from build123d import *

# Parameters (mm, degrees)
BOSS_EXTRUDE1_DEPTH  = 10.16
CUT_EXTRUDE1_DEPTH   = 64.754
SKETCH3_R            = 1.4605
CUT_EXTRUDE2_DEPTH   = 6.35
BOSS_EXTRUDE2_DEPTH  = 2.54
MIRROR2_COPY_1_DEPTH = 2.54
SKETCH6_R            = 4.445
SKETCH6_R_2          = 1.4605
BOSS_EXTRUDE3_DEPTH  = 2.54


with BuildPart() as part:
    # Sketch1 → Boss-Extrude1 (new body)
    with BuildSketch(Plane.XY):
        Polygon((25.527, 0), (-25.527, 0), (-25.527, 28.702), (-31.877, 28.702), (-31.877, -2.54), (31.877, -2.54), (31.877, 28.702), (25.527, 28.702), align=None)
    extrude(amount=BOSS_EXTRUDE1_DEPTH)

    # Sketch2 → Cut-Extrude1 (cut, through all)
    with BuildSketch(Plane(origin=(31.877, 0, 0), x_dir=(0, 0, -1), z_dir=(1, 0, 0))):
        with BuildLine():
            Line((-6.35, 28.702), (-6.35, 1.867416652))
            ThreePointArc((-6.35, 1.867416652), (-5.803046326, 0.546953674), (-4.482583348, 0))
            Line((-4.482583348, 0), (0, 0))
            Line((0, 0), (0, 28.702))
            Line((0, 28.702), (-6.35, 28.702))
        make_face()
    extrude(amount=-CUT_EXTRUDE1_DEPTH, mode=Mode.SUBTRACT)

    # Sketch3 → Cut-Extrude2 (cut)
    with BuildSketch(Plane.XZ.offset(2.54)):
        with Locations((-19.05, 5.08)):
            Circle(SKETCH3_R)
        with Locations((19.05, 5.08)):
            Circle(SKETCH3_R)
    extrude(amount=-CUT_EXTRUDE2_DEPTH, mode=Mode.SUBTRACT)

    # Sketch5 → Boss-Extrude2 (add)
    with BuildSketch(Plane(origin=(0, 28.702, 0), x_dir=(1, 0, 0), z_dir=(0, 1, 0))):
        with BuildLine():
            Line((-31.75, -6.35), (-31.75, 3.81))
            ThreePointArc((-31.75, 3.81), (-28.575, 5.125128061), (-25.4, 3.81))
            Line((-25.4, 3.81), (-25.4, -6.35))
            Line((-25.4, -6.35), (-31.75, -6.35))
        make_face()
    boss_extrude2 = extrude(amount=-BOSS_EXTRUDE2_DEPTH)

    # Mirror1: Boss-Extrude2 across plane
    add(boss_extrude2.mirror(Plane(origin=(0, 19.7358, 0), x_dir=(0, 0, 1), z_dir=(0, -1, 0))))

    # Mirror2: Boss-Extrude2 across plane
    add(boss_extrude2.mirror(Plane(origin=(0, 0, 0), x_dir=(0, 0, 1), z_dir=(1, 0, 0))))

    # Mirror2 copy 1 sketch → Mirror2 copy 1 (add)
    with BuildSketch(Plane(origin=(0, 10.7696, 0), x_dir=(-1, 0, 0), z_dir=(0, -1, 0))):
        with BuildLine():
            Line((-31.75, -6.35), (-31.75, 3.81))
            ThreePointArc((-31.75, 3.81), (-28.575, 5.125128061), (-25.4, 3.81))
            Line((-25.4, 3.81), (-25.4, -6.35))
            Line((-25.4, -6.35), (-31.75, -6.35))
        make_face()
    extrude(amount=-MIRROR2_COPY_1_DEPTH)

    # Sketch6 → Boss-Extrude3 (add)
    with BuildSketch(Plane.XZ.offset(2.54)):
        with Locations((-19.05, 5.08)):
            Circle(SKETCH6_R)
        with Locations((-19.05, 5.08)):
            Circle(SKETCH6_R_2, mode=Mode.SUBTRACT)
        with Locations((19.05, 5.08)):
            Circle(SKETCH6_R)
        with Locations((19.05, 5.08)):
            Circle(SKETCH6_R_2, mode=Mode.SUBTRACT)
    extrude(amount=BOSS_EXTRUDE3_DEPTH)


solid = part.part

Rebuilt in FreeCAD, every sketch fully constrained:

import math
import FreeCAD as App
import Part
import Sketcher
Q = App.Units.Quantity


def add_polygon(sketch, points):
    """Adds a closed chain of lines whose ends are joined by coincident constraints."""
    first, n = sketch.GeometryCount, len(points)
    for a, b in zip(points, points[1:] + points[:1]):
        sketch.addGeometry(Part.LineSegment(App.Vector(*a, 0), App.Vector(*b, 0)), False)
    for i in range(n):
        sketch.addConstraint(Sketcher.Constraint("Coincident", first + i, 2, first + (i + 1) % n, 1))

doc = App.newDocument("Part")
params = doc.addObject("Spreadsheet::Sheet", "Params")
for row, (alias, value) in enumerate([
    ("sketch1_width", "2.01 in"),
    ("sketch1_width2", "0.25 in"),
    ("sketch1_height", "1.13 in"),
    ("sketch1_height2", "1.23 in"),
    ("pad1_length", "0.4 in"),
    ("sketch2_width", "1.13 in"),
    ("sketch2_height", "0.25 in"),
    ("sketch3_diameter", "0.115 in"),
    ("pocket2_length", "0.25 in"),
    ("sketch4_height", "0.4 in"),
    ("sketch4_width", "0.25 in"),
    ("pad2_length", "0.1 in"),
    ("sketch5_height", "0.4 in"),
    ("sketch5_width", "0.25 in"),
    ("pad3_length", "0.1 in"),
    ("sketch6_diameter", "0.35 in"),
    ("sketch6_diameter2", "0.115 in"),
    ("pad4_length", "0.1 in"),
], start=1):
    params.set(f"A{row}", alias)
    params.set(f"B{row}", "=" + value)
    params.setAlias(f"B{row}", alias)

body = doc.addObject("PartDesign::Body", "Body")

# Sketch on XY plane
sketch1 = body.newObject("Sketcher::SketchObject", "Sketch")
sketch1.AttachmentSupport = (doc.getObject("XY_Plane"), [""])
sketch1.MapMode = "FlatFace"
add_polygon(sketch1, [(26, 0), (-26, 0), (-26, 29), (-32, 29), (-32, -3), (32, -3), (32, 29), (26, 29)])  # lines 0-7
sketch1.addConstraint(Sketcher.Constraint("Horizontal", 0))
sketch1.addConstraint(Sketcher.Constraint("Vertical", 1))
sketch1.addConstraint(Sketcher.Constraint("Horizontal", 2))
sketch1.addConstraint(Sketcher.Constraint("Vertical", 3))
sketch1.addConstraint(Sketcher.Constraint("Horizontal", 4))
sketch1.addConstraint(Sketcher.Constraint("Vertical", 5))
sketch1.addConstraint(Sketcher.Constraint("Horizontal", 6))
sketch1.addConstraint(Sketcher.Constraint("Vertical", 7))
sketch1.addConstraint(Sketcher.Constraint("Symmetric", 0, 2, 7, 2, -1, 1))
sketch1.addConstraint(Sketcher.Constraint("Symmetric", 2, 2, 5, 2, -2))
sketch1.addConstraint(Sketcher.Constraint("DistanceX", 0, 2, 0, 1, Q("2.01 in")))
sketch1.addConstraint(Sketcher.Constraint("DistanceX", 2, 2, 2, 1, Q("0.25 in")))
sketch1.addConstraint(Sketcher.Constraint("DistanceY", 1, 1, 1, 2, Q("1.13 in")))
sketch1.addConstraint(Sketcher.Constraint("DistanceY", 3, 2, 3, 1, Q("1.23 in")))
sketch1.setExpression("Constraints[18]", "Params.sketch1_width")
sketch1.setExpression("Constraints[19]", "Params.sketch1_width2")
sketch1.setExpression("Constraints[20]", "Params.sketch1_height")
sketch1.setExpression("Constraints[21]", "Params.sketch1_height2")
pad1 = body.newObject("PartDesign::Pad", "Pad")
pad1.Profile = sketch1
pad1.setExpression("Length", "Params.pad1_length")

# Sketch on YZ plane
sketch2 = body.newObject("Sketcher::SketchObject", "Sketch001")
sketch2.AttachmentSupport = (doc.getObject("YZ_Plane"), [""])
sketch2.MapMode = "FlatFace"
sketch2.AttachmentOffset = App.Placement(App.Vector(0, 0, 1.255 * 25.4), App.Rotation())
sketch2.addGeometry(Part.LineSegment(App.Vector(28.7, 6.3, 0), App.Vector(1.9, 6.3, 0)), False)
sketch2.addGeometry(Part.ArcOfCircle(Part.Circle(App.Vector(1.9, 4.5, 0), App.Vector(0, 0, 1), 1.9), math.radians(90), math.radians(180)), False)
sketch2.addGeometry(Part.LineSegment(App.Vector(0, 4.5, 0), App.Vector(0, 0, 0)), False)
sketch2.addGeometry(Part.LineSegment(App.Vector(0, 0, 0), App.Vector(28.7, 0, 0)), False)
sketch2.addGeometry(Part.LineSegment(App.Vector(28.7, 0, 0), App.Vector(28.7, 6.3, 0)), False)
sketch2.addConstraint(Sketcher.Constraint("Tangent", 0, 2, 1, 1))
sketch2.addConstraint(Sketcher.Constraint("Tangent", 1, 2, 2, 1))
sketch2.addConstraint(Sketcher.Constraint("Coincident", 2, 2, 3, 1))
sketch2.addConstraint(Sketcher.Constraint("Coincident", 3, 2, 4, 1))
sketch2.addConstraint(Sketcher.Constraint("Coincident", 4, 2, 0, 1))
sketch2.addConstraint(Sketcher.Constraint("Horizontal", 0))
sketch2.addConstraint(Sketcher.Constraint("Vertical", 2))
sketch2.addConstraint(Sketcher.Constraint("Horizontal", 3))
sketch2.addConstraint(Sketcher.Constraint("Vertical", 4))
sketch2.addConstraint(Sketcher.Constraint("Coincident", 2, 2, -1, 1))
sketch2.addConstraint(Sketcher.Constraint("DistanceX", 3, 1, 3, 2, Q("1.13 in")))
sketch2.addConstraint(Sketcher.Constraint("DistanceY", 4, 1, 4, 2, Q("0.25 in")))
sketch2.addConstraint(Sketcher.Constraint("Radius", 1, Q("1.867417 mm")))
sketch2.setExpression("Constraints[10]", "Params.sketch2_width")
sketch2.setExpression("Constraints[11]", "Params.sketch2_height")
pocket1 = body.newObject("PartDesign::Pocket", "Pocket")
pocket1.Profile = sketch2
pocket1.Type = "ThroughAll"

# Sketch on XZ plane
sketch3 = body.newObject("Sketcher::SketchObject", "Sketch002")
sketch3.AttachmentSupport = (doc.getObject("XZ_Plane"), [""])
sketch3.MapMode = "FlatFace"
sketch3.AttachmentOffset = App.Placement(App.Vector(0, 0, 0.1 * 25.4), App.Rotation())
sketch3.addGeometry(Part.Circle(App.Vector(-19.1, 5.1, 0), App.Vector(0, 0, 1), 1.5), False)
sketch3.addGeometry(Part.Circle(App.Vector(19.1, 5.1, 0), App.Vector(0, 0, 1), 1.5), False)
sketch3.addConstraint(Sketcher.Constraint("Equal", 0, 1))
sketch3.addConstraint(Sketcher.Constraint("Symmetric", 0, 3, 1, 3, -2))
sketch3.addConstraint(Sketcher.Constraint("Diameter", 0, Q("0.115 in")))
sketch3.addConstraint(Sketcher.Constraint("DistanceY", -1, 1, 0, 3, Q("0.2 in")))
sketch3.addConstraint(Sketcher.Constraint("DistanceX", 0, 3, 1, 3, Q("1.5 in")))
sketch3.setExpression("Constraints[2]", "Params.sketch3_diameter")
pocket2 = body.newObject("PartDesign::Pocket", "Pocket001")
pocket2.Profile = sketch3
pocket2.setExpression("Length", "Params.pocket2_length")

# Sketch on XZ plane
sketch4 = body.newObject("Sketcher::SketchObject", "Sketch003")
sketch4.AttachmentSupport = (doc.getObject("XZ_Plane"), [""])
sketch4.MapMode = "FlatFace"
sketch4.AttachmentOffset = App.Placement(App.Vector(0, 0, -1.13 * 25.4), App.Rotation())
sketch4.addGeometry(Part.LineSegment(App.Vector(-31.8, -3.8, 0), App.Vector(-31.8, 6.3, 0)), False)
sketch4.addGeometry(Part.LineSegment(App.Vector(-31.8, 6.3, 0), App.Vector(-25.4, 6.3, 0)), False)
sketch4.addGeometry(Part.LineSegment(App.Vector(-25.4, 6.3, 0), App.Vector(-25.4, -3.8, 0)), False)
sketch4.addGeometry(Part.ArcOfCircle(Part.Circle(App.Vector(-28.6, -0.6, 0), App.Vector(0, 0, 1), 4.5), math.radians(-135), math.radians(-45)), False)
sketch4.addConstraint(Sketcher.Constraint("Coincident", 0, 2, 1, 1))
sketch4.addConstraint(Sketcher.Constraint("Coincident", 1, 2, 2, 1))
sketch4.addConstraint(Sketcher.Constraint("Coincident", 2, 2, 3, 2))
sketch4.addConstraint(Sketcher.Constraint("Coincident", 3, 1, 0, 1))
sketch4.addConstraint(Sketcher.Constraint("Vertical", 0))
sketch4.addConstraint(Sketcher.Constraint("Horizontal", 1))
sketch4.addConstraint(Sketcher.Constraint("Vertical", 2))
sketch4.addConstraint(Sketcher.Constraint("Horizontal", 2, 2, 3, 1))
sketch4.addConstraint(Sketcher.Constraint("DistanceY", 0, 1, 0, 2, Q("0.4 in")))
sketch4.addConstraint(Sketcher.Constraint("DistanceX", 1, 2, -1, 1, Q("1 in")))
sketch4.addConstraint(Sketcher.Constraint("DistanceX", 1, 1, 1, 2, Q("0.25 in")))
sketch4.addConstraint(Sketcher.Constraint("DistanceY", -1, 1, 0, 2, Q("0.25 in")))
sketch4.addConstraint(Sketcher.Constraint("DistanceY", 3, 3, -1, 1, Q("0.025 in")))
sketch4.setExpression("Constraints[8]", "Params.sketch4_height")
sketch4.setExpression("Constraints[10]", "Params.sketch4_width")
pad2 = body.newObject("PartDesign::Pad", "Pad001")
pad2.Profile = sketch4
pad2.setExpression("Length", "Params.pad2_length")
doc.recompute()

datumplane = body.newObject("PartDesign::Plane", "DatumPlane")
datumplane.AttachmentSupport = (doc.getObject("XZ_Plane"), [""])
datumplane.MapMode = "FlatFace"
datumplane.AttachmentOffset = App.Placement(App.Vector(0, 0, -0.777 * 25.4), App.Rotation())
mirrored = body.newObject("PartDesign::Mirrored", "Mirrored")
mirrored.Originals = [pad2]
mirrored.MirrorPlane = (datumplane, [""])
body.Tip = mirrored
doc.recompute()

mirrored2 = body.newObject("PartDesign::Mirrored", "Mirrored001")
mirrored2.Originals = [pad2]
mirrored2.MirrorPlane = (doc.getObject("YZ_Plane"), [""])
body.Tip = mirrored2

# Sketch on XZ plane
sketch5 = body.newObject("Sketcher::SketchObject", "Sketch004")
sketch5.AttachmentSupport = (doc.getObject("XZ_Plane"), [""])
sketch5.MapMode = "FlatFace"
sketch5.AttachmentOffset = App.Placement(App.Vector(0, 0, -0.424 * 25.4), App.Rotation())
sketch5.addGeometry(Part.LineSegment(App.Vector(31.8, -3.8, 0), App.Vector(31.8, 6.3, 0)), False)
sketch5.addGeometry(Part.LineSegment(App.Vector(31.8, 6.3, 0), App.Vector(25.4, 6.3, 0)), False)
sketch5.addGeometry(Part.LineSegment(App.Vector(25.4, 6.3, 0), App.Vector(25.4, -3.8, 0)), False)
sketch5.addGeometry(Part.ArcOfCircle(Part.Circle(App.Vector(28.6, -0.6, 0), App.Vector(0, 0, 1), 4.5), math.radians(-135), math.radians(-45)), False)
sketch5.addConstraint(Sketcher.Constraint("Coincident", 0, 2, 1, 1))
sketch5.addConstraint(Sketcher.Constraint("Coincident", 1, 2, 2, 1))
sketch5.addConstraint(Sketcher.Constraint("Coincident", 2, 2, 3, 1))
sketch5.addConstraint(Sketcher.Constraint("Coincident", 3, 2, 0, 1))
sketch5.addConstraint(Sketcher.Constraint("Vertical", 0))
sketch5.addConstraint(Sketcher.Constraint("Horizontal", 1))
sketch5.addConstraint(Sketcher.Constraint("Vertical", 2))
sketch5.addConstraint(Sketcher.Constraint("Horizontal", 2, 2, 3, 2))
sketch5.addConstraint(Sketcher.Constraint("DistanceY", 0, 1, 0, 2, Q("0.4 in")))
sketch5.addConstraint(Sketcher.Constraint("DistanceX", -1, 1, 1, 2, Q("1 in")))
sketch5.addConstraint(Sketcher.Constraint("DistanceX", 1, 2, 1, 1, Q("0.25 in")))
sketch5.addConstraint(Sketcher.Constraint("DistanceY", -1, 1, 0, 2, Q("0.25 in")))
sketch5.addConstraint(Sketcher.Constraint("DistanceY", 3, 3, -1, 1, Q("0.025 in")))
sketch5.setExpression("Constraints[8]", "Params.sketch5_height")
sketch5.setExpression("Constraints[10]", "Params.sketch5_width")
pad3 = body.newObject("PartDesign::Pad", "Pad002")
pad3.Profile = sketch5
pad3.setExpression("Length", "Params.pad3_length")
pad3.Reversed = True

# Sketch on XZ plane
sketch6 = body.newObject("Sketcher::SketchObject", "Sketch005")
sketch6.AttachmentSupport = (doc.getObject("XZ_Plane"), [""])
sketch6.MapMode = "FlatFace"
sketch6.AttachmentOffset = App.Placement(App.Vector(0, 0, 0.1 * 25.4), App.Rotation())
sketch6.addGeometry(Part.Circle(App.Vector(-19.1, 5.1, 0), App.Vector(0, 0, 1), 4.4), False)
sketch6.addGeometry(Part.Circle(App.Vector(-19.1, 5.1, 0), App.Vector(0, 0, 1), 1.5), False)
sketch6.addGeometry(Part.Circle(App.Vector(19.1, 5.1, 0), App.Vector(0, 0, 1), 4.4), False)
sketch6.addGeometry(Part.Circle(App.Vector(19.1, 5.1, 0), App.Vector(0, 0, 1), 1.5), False)
sketch6.addConstraint(Sketcher.Constraint("Coincident", 1, 3, 0, 3))
sketch6.addConstraint(Sketcher.Constraint("Coincident", 3, 3, 2, 3))
sketch6.addConstraint(Sketcher.Constraint("Equal", 0, 2))
sketch6.addConstraint(Sketcher.Constraint("Equal", 1, 3))
sketch6.addConstraint(Sketcher.Constraint("Symmetric", 0, 3, 2, 3, -2))
sketch6.addConstraint(Sketcher.Constraint("Diameter", 0, Q("0.35 in")))
sketch6.addConstraint(Sketcher.Constraint("Diameter", 1, Q("0.115 in")))
sketch6.addConstraint(Sketcher.Constraint("DistanceY", -1, 1, 0, 3, Q("0.2 in")))
sketch6.addConstraint(Sketcher.Constraint("DistanceX", 0, 3, 2, 3, Q("1.5 in")))
sketch6.setExpression("Constraints[5]", "Params.sketch6_diameter")
sketch6.setExpression("Constraints[6]", "Params.sketch6_diameter2")
pad4 = body.newObject("PartDesign::Pad", "Pad003")
pad4.Profile = sketch6
pad4.setExpression("Length", "Params.pad4_length")

doc.recompute()
